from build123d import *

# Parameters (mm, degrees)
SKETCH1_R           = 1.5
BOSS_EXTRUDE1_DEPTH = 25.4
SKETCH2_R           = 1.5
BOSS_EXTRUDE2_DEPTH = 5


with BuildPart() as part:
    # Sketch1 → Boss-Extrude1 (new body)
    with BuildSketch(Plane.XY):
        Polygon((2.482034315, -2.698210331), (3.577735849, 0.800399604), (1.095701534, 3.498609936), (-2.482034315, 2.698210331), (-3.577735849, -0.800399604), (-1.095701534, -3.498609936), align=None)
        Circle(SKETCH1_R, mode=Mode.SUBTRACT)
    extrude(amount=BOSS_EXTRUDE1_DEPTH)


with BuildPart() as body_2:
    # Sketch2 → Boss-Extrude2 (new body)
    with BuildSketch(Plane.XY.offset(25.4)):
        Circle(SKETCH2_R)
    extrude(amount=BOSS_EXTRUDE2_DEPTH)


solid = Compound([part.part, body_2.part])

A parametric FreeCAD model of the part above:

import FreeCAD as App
import Part
import Sketcher
from FreeCAD import Vector


def add_polygon(sketch, points):
    """Adds a closed chain of lines whose ends are joined by coincident constraints."""
    first, n = sketch.GeometryCount, len(points)
    for a, b in zip(points, points[1:] + points[:1]):
        sketch.addGeometry(Part.LineSegment(App.Vector(*a, 0), App.Vector(*b, 0)), False)
    for i in range(n):
        sketch.addConstraint(Sketcher.Constraint("Coincident", first + i, 2, first + (i + 1) % n, 1))

doc = App.newDocument("Part")
params = doc.addObject("Spreadsheet::Sheet", "Params")
for row, (alias, value) in enumerate([
    ("sketch1_diameter", "3 mm"),
    ("pad1_length", "25.4 mm"),
    ("sketch2_diameter", "3 mm"),
    ("pad2_length", "5 mm"),
], start=1):
    params.set(f"A{row}", alias)
    params.set(f"B{row}", "=" + value)
    params.setAlias(f"B{row}", alias)

body = doc.addObject("PartDesign::Body", "Body")

sketch1 = doc.addObject("Sketcher::SketchObject", "Sketch")
body.addObject(sketch1)
sketch1.AttachmentSupport = (doc.XY_Plane, [""])
sketch1.MapMode = "FlatFace"
add_polygon(sketch1, [(2.5, -2.7), (3.6, 0.8), (1.1, 3.5), (-2.5, 2.7), (-3.6, -0.8), (-1.1, -3.5)])
sketch1.addGeometry(Part.Circle(Vector(0, 0, 0), Vector(0, 0, 1), 1.5), False)
sketch1.addConstraint([
    Sketcher.Constraint("Coincident", 6, 3, -1, 1),
    Sketcher.Constraint("Symmetric", 0, 2, 3, 2, -1, 1),
    Sketcher.Constraint("Symmetric", 1, 2, 4, 2, -1, 1),
    Sketcher.Constraint("Symmetric", 2, 2, 5, 2, -1, 1),
    Sketcher.Constraint("Equal", 0, 1),
    Sketcher.Constraint("Equal", 1, 2),
    Sketcher.Constraint("Diameter", 6, 3.0),
    Sketcher.Constraint("DistanceY", -1, 1, 0, 2, 0.8004),
    Sketcher.Constraint("DistanceX", -1, 1, 1, 2, 1.095702),
    Sketcher.Constraint("DistanceY", 2, 2, 1, 2, 0.8004),
    Sketcher.Constraint("DistanceX", 3, 2, 2, 2, 1.095702),
])
sketch1.setExpression("Constraints[12]", "Params.sketch1_diameter")
pad1 = doc.addObject("PartDesign::Pad", "Pad")
body.addObject(pad1)
pad1.Profile = sketch1
pad1.setExpression("Length", "Params.pad1_length")
body2 = doc.addObject("PartDesign::Body", "Body001")

sketch2 = doc.addObject("Sketcher::SketchObject", "Sketch001")
body2.addObject(sketch2)
sketch2.AttachmentSupport = (doc.getObject("XY_Plane001"), [""])
sketch2.MapMode = "FlatFace"
sketch2.AttachmentOffset = App.Placement(Vector(0, 0, 25.4), App.Rotation())
sketch2.addGeometry(Part.Circle(Vector(0, 0, 0), Vector(0, 0, 1), 1.5), False)
sketch2.addConstraint([
    Sketcher.Constraint("Coincident", 0, 3, -1, 1),
    Sketcher.Constraint("Diameter", 0, 3.0),
])
sketch2.setExpression("Constraints[1]", "Params.sketch2_diameter")
pad2 = doc.addObject("PartDesign::Pad", "Pad001")
body2.addObject(pad2)
pad2.Profile = sketch2
pad2.setExpression("Length", "Params.pad2_length")

doc.recompute()
